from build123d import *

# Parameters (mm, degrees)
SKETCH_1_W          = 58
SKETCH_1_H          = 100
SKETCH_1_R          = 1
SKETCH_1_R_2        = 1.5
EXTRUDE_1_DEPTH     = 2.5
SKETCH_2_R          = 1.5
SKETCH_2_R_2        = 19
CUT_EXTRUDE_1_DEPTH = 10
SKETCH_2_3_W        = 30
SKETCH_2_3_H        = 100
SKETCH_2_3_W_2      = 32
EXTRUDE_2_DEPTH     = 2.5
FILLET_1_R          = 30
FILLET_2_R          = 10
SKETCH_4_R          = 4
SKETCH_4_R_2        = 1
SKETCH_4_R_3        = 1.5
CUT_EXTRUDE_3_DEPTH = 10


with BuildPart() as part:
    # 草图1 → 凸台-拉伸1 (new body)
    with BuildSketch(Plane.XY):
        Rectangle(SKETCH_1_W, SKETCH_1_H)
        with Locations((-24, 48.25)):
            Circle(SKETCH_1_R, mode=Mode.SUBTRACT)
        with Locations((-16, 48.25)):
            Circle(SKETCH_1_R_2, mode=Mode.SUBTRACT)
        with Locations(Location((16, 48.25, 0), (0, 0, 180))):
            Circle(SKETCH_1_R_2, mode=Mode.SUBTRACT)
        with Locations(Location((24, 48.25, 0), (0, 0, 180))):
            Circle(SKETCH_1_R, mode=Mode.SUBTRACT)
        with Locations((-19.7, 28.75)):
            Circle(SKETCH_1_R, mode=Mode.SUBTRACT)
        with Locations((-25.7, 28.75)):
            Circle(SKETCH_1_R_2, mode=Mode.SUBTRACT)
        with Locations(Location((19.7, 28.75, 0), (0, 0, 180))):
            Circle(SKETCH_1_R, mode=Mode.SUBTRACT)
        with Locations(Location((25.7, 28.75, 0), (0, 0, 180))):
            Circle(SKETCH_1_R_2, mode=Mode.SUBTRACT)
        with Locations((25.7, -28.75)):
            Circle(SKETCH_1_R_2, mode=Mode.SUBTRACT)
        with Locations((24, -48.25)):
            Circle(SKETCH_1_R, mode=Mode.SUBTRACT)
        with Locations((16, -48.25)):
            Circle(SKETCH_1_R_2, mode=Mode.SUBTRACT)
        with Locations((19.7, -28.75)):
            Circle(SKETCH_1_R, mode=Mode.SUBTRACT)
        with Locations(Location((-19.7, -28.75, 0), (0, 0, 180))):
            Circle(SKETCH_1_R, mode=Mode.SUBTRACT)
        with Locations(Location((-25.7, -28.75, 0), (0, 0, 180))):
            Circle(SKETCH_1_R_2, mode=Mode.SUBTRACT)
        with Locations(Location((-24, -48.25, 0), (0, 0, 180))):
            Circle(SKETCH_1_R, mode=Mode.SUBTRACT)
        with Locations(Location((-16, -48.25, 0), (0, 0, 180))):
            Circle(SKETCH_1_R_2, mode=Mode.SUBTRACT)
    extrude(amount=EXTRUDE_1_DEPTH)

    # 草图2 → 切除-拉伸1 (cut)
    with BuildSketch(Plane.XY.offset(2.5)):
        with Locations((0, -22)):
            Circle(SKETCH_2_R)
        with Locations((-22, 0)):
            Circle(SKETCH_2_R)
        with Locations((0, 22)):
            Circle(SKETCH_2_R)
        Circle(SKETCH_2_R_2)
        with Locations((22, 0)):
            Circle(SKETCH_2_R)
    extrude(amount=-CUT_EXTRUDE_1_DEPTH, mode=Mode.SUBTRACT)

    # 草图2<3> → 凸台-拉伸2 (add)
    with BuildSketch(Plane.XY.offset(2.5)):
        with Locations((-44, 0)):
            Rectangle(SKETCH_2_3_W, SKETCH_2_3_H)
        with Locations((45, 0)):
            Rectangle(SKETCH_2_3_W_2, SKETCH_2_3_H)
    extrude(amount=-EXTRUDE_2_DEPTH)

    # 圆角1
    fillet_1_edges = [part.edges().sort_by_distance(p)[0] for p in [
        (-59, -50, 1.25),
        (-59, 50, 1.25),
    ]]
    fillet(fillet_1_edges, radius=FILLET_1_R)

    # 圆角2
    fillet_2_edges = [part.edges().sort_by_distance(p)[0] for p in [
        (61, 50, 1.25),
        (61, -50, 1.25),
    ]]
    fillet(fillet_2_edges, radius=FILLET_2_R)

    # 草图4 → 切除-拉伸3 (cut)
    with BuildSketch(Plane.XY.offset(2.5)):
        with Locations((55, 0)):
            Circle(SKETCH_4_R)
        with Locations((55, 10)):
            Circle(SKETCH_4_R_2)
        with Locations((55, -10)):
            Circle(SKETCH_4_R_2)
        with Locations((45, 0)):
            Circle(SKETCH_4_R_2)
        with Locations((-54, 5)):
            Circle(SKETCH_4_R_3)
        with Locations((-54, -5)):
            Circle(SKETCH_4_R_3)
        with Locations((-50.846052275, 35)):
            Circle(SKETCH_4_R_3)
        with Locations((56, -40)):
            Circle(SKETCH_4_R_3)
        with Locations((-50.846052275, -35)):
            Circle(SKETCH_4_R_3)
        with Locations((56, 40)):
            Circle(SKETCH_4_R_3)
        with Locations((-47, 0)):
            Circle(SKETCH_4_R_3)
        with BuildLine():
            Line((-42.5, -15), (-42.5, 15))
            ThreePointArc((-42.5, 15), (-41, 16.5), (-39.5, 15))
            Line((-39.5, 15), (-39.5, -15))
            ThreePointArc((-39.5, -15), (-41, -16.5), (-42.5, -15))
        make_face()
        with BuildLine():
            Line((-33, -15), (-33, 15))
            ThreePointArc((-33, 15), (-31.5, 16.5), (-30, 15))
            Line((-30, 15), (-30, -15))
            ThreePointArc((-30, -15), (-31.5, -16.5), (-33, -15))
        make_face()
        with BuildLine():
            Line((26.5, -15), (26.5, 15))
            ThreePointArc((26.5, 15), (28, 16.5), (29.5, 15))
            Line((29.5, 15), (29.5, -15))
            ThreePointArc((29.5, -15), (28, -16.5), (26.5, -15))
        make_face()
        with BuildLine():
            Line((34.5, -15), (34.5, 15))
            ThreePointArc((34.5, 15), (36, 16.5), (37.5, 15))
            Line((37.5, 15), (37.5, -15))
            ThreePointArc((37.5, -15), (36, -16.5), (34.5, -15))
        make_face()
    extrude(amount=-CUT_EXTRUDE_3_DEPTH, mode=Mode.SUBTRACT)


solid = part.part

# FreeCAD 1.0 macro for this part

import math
import FreeCAD as App
import Part
import Sketcher

V = App.Vector
Q = App.Units.Quantity


def edges_at(feature, points):
    """Names of the edges that pass closest to the given points."""
    edges = feature.Shape.Edges
    near = lambda p: min(range(len(edges)), key=lambda i: edges[i].distToShape(Part.Vertex(*p))[0])
    return sorted({f"Edge{near(p) + 1}" for p in points})

doc = App.newDocument("Part")
body = doc.addObject("PartDesign::Body", "Body")

sketch1 = doc.addObject("Sketcher::SketchObject", "Sketch")
body.addObject(sketch1)
sketch1.AttachmentSupport = (doc.XY_Plane, [""])
sketch1.MapMode = "FlatFace"
sketch1.addGeometry([
    Part.LineSegment(V(-29, 50, 0), V(-29, -50, 0)),
    Part.LineSegment(V(-29, -50, 0), V(29, -50, 0)),
    Part.LineSegment(V(29, -50, 0), V(29, 50, 0)),
    Part.LineSegment(V(29, 50, 0), V(-29, 50, 0)),
    Part.Circle(V(-24, -48.2, 0), V(0, 0, 1), 1),
    Part.Circle(V(-16, -48.2, 0), V(0, 0, 1), 1.5),
    Part.Circle(V(-25.7, -28.8, 0), V(0, 0, 1), 1.5),
    Part.Circle(V(-19.7, -28.8, 0), V(0, 0, 1), 1),
    Part.Circle(V(16, -48.2, 0), V(0, 0, 1), 1.5),
    Part.Circle(V(24, -48.2, 0), V(0, 0, 1), 1),
    Part.Circle(V(19.7, -28.8, 0), V(0, 0, 1), 1),
    Part.Circle(V(25.7, -28.8, 0), V(0, 0, 1), 1.5),
    Part.Circle(V(-25.7, 28.8, 0), V(0, 0, 1), 1.5),
    Part.Circle(V(-19.7, 28.8, 0), V(0, 0, 1), 1),
    Part.Circle(V(-24, 48.2, 0), V(0, 0, 1), 1),
    Part.Circle(V(-16, 48.2, 0), V(0, 0, 1), 1.5),
    Part.Circle(V(19.7, 28.8, 0), V(0, 0, 1), 1),
    Part.Circle(V(25.7, 28.8, 0), V(0, 0, 1), 1.5),
    Part.Circle(V(16, 48.2, 0), V(0, 0, 1), 1.5),
    Part.Circle(V(24, 48.2, 0), V(0, 0, 1), 1),
], False)
sketch1.addConstraint([
    Sketcher.Constraint("Coincident", 0, 2, 1, 1),
    Sketcher.Constraint("Coincident", 1, 2, 2, 1),
    Sketcher.Constraint("Coincident", 2, 2, 3, 1),
    Sketcher.Constraint("Coincident", 3, 2, 0, 1),
    Sketcher.Constraint("Vertical", 0),
    Sketcher.Constraint("Horizontal", 1),
    Sketcher.Constraint("Vertical", 2),
    Sketcher.Constraint("Horizontal", 3),
    Sketcher.Constraint("Equal", 5, 6),
    Sketcher.Constraint("Equal", 4, 7),
    Sketcher.Constraint("Equal", 6, 8),
    Sketcher.Constraint("Equal", 7, 9),
    Sketcher.Constraint("Equal", 9, 10),
    Sketcher.Constraint("Equal", 8, 11),
    Sketcher.Constraint("Equal", 11, 12),
    Sketcher.Constraint("Equal", 10, 13),
    Sketcher.Constraint("Equal", 13, 14),
    Sketcher.Constraint("Equal", 12, 15),
    Sketcher.Constraint("Equal", 14, 16),
    Sketcher.Constraint("Equal", 15, 17),
    Sketcher.Constraint("Equal", 17, 18),
    Sketcher.Constraint("Equal", 16, 19),
    Sketcher.Constraint("Symmetric", 11, 3, 12, 3, -1, 1),
    Sketcher.Constraint("Symmetric", 10, 3, 13, 3, -1, 1),
    Sketcher.Constraint("Symmetric", 9, 3, 14, 3, -1, 1),
    Sketcher.Constraint("Symmetric", 8, 3, 15, 3, -1, 1),
    Sketcher.Constraint("Symmetric", 7, 3, 16, 3, -1, 1),
    Sketcher.Constraint("Symmetric", 6, 3, 17, 3, -1, 1),
    Sketcher.Constraint("Symmetric", 5, 3, 18, 3, -1, 1),
    Sketcher.Constraint("Symmetric", 4, 3, 19, 3, -1, 1),
    Sketcher.Constraint("Symmetric", 0, 2, 2, 2, -1, 1),
    Sketcher.Constraint("Symmetric", 5, 3, 8, 3, -2),
    Sketcher.Constraint("Symmetric", 4, 3, 9, 3, -2),
    Sketcher.Constraint("Symmetric", 7, 3, 10, 3, -2),
    Sketcher.Constraint("Symmetric", 6, 3, 11, 3, -2),
    Sketcher.Constraint("Horizontal", 4, 3, 5, 3),
    Sketcher.Constraint("Horizontal", 6, 3, 7, 3),
    Sketcher.Constraint("Diameter", 4, Q("2 mm")),
    Sketcher.Constraint("Diameter", 5, Q("3 mm")),
    Sketcher.Constraint("DistanceX", 1, 1, 1, 2, Q("58 mm")),
    Sketcher.Constraint("DistanceY", 0, 2, 0, 1, Q("100 mm")),
    Sketcher.Constraint("DistanceX", 4, 3, -1, 1, Q("24 mm")),
    Sketcher.Constraint("DistanceX", 5, 3, -1, 1, Q("16 mm")),
    Sketcher.Constraint("DistanceX", 6, 3, 7, 3, Q("6 mm")),
    Sketcher.Constraint("DistanceY", 4, 3, 12, 3, Q("77 mm")),
    Sketcher.Constraint("DistanceX", 6, 3, -1, 1, Q("25.7 mm")),
    Sketcher.Constraint("DistanceY", 4, 3, 6, 3, Q("19.5 mm")),
])
pad1 = doc.addObject("PartDesign::Pad", "Pad")
body.addObject(pad1)
pad1.Profile = sketch1
pad1.Length = 2.5

sketch2 = doc.addObject("Sketcher::SketchObject", "Sketch001")
body.addObject(sketch2)
sketch2.AttachmentSupport = (doc.XY_Plane, [""])
sketch2.MapMode = "FlatFace"
sketch2.AttachmentOffset = App.Placement(V(0, 0, 2.5), App.Rotation())
sketch2.addGeometry([
    Part.Circle(V(0, -22, 0), V(0, 0, 1), 1.5),
    Part.Circle(V(-22, 0, 0), V(0, 0, 1), 1.5),
    Part.Circle(V(0, 22, 0), V(0, 0, 1), 1.5),
    Part.Circle(V(0, 0, 0), V(0, 0, 1), 19),
    Part.Circle(V(22, 0, 0), V(0, 0, 1), 1.5),
], False)
sketch2.addConstraint([
    Sketcher.Constraint("Coincident", 3, 3, -1, 1),
    Sketcher.Constraint("Equal", 0, 1),
    Sketcher.Constraint("Equal", 1, 2),
    Sketcher.Constraint("Equal", 2, 4),
    Sketcher.Constraint("Symmetric", 0, 3, 2, 3, -1, 1),
    Sketcher.Constraint("Symmetric", 1, 3, 4, 3, -1, 1),
    Sketcher.Constraint("PointOnObject", 0, 3, -2),
    Sketcher.Constraint("PointOnObject", 1, 3, -1),
    Sketcher.Constraint("Diameter", 0, Q("3 mm")),
    Sketcher.Constraint("Diameter", 3, Q("38 mm")),
    Sketcher.Constraint("DistanceY", 0, 3, -1, 1, Q("22 mm")),
    Sketcher.Constraint("DistanceX", 1, 3, -1, 1, Q("22 mm")),
])
pocket1 = doc.addObject("PartDesign::Pocket", "Pocket")
body.addObject(pocket1)
pocket1.Profile = sketch2
pocket1.Length = 10

sketch3 = doc.addObject("Sketcher::SketchObject", "Sketch002")
body.addObject(sketch3)
sketch3.AttachmentSupport = (doc.XY_Plane, [""])
sketch3.MapMode = "FlatFace"
sketch3.AttachmentOffset = App.Placement(V(0, 0, 2.5), App.Rotation())
sketch3.addGeometry([
    Part.LineSegment(V(-59, 50, 0), V(-59, -50, 0)),
    Part.LineSegment(V(-59, -50, 0), V(-29, -50, 0)),
    Part.LineSegment(V(-29, -50, 0), V(-29, 50, 0)),
    Part.LineSegment(V(-29, 50, 0), V(-59, 50, 0)),
    Part.LineSegment(V(29, 50, 0), V(29, -50, 0)),
    Part.LineSegment(V(29, -50, 0), V(61, -50, 0)),
    Part.LineSegment(V(61, -50, 0), V(61, 50, 0)),
    Part.LineSegment(V(61, 50, 0), V(29, 50, 0)),
], False)
sketch3.addConstraint([
    Sketcher.Constraint("Coincident", 0, 2, 1, 1),
    Sketcher.Constraint("Coincident", 1, 2, 2, 1),
    Sketcher.Constraint("Coincident", 2, 2, 3, 1),
    Sketcher.Constraint("Coincident", 3, 2, 0, 1),
    Sketcher.Constraint("Coincident", 4, 2, 5, 1),
    Sketcher.Constraint("Coincident", 5, 2, 6, 1),
    Sketcher.Constraint("Coincident", 6, 2, 7, 1),
    Sketcher.Constraint("Coincident", 7, 2, 4, 1),
    Sketcher.Constraint("Vertical", 0),
    Sketcher.Constraint("Horizontal", 1),
    Sketcher.Constraint("Vertical", 2),
    Sketcher.Constraint("Horizontal", 3),
    Sketcher.Constraint("Vertical", 4),
    Sketcher.Constraint("Horizontal", 5),
    Sketcher.Constraint("Vertical", 6),
    Sketcher.Constraint("Horizontal", 7),
    Sketcher.Constraint("Symmetric", 2, 2, 4, 2, -1, 1),
    Sketcher.Constraint("Horizontal", 1, 2, 4, 2),
    Sketcher.Constraint("Horizontal", 3, 2, 6, 2),
    Sketcher.Constraint("DistanceX", 1, 1, 1, 2, Q("30 mm")),
    Sketcher.Constraint("DistanceX", 5, 1, 5, 2, Q("32 mm")),
    Sketcher.Constraint("DistanceY", 0, 2, 0, 1, Q("100 mm")),
    Sketcher.Constraint("DistanceX", 0, 2, -1, 1, Q("59 mm")),
])
pad2 = doc.addObject("PartDesign::Pad", "Pad001")
body.addObject(pad2)
pad2.Profile = sketch3
pad2.Length = 2.5
pad2.Reversed = True
doc.recompute()

fillet = doc.addObject("PartDesign::Fillet", "Fillet")
body.addObject(fillet)
fillet.Base = (pad2, edges_at(pad2, [(-59, -50, 1.25), (-59, 50, 1.25)]))
fillet.Radius = 30
doc.recompute()

fillet2 = doc.addObject("PartDesign::Fillet", "Fillet001")
body.addObject(fillet2)
fillet2.Base = (fillet, edges_at(fillet, [(61, 50, 1.25), (61, -50, 1.25)]))
fillet2.Radius = 10

sketch4 = doc.addObject("Sketcher::SketchObject", "Sketch003")
body.addObject(sketch4)
sketch4.AttachmentSupport = (doc.XY_Plane, [""])
sketch4.MapMode = "FlatFace"
sketch4.AttachmentOffset = App.Placement(V(0, 0, 2.5), App.Rotation())
sketch4.addGeometry([
    Part.Circle(V(55, 0, 0), V(0, 0, 1), 4),
    Part.Circle(V(55, 10, 0), V(0, 0, 1), 1),
    Part.Circle(V(55, -10, 0), V(0, 0, 1), 1),
    Part.Circle(V(45, 0, 0), V(0, 0, 1), 1),
    Part.Circle(V(-54, 5, 0), V(0, 0, 1), 1.5),
    Part.Circle(V(-54, -5, 0), V(0, 0, 1), 1.5),
    Part.Circle(V(-50.8, 35, 0), V(0, 0, 1), 1.5),
    Part.Circle(V(56, -40, 0), V(0, 0, 1), 1.5),
    Part.Circle(V(-50.8, -35, 0), V(0, 0, 1), 1.5),
    Part.Circle(V(56, 40, 0), V(0, 0, 1), 1.5),
    Part.Circle(V(-47, 0, 0), V(0, 0, 1), 1.5),
    Part.LineSegment(V(-42.5, 15, 0), V(-42.5, -15, 0)),
    Part.ArcOfCircle(Part.Circle(V(-41, -15, 0), V(0, 0, 1), 1.5), math.radians(180), math.radians(360)),
    Part.LineSegment(V(-39.5, -15, 0), V(-39.5, 15, 0)),
    Part.ArcOfCircle(Part.Circle(V(-41, 15, 0), V(0, 0, 1), 1.5), math.radians(0), math.radians(180)),
    Part.LineSegment(V(-33, 15, 0), V(-33, -15, 0)),
    Part.ArcOfCircle(Part.Circle(V(-31.5, -15, 0), V(0, 0, 1), 1.5), math.radians(180), math.radians(360)),
    Part.LineSegment(V(-30, -15, 0), V(-30, 15, 0)),
    Part.ArcOfCircle(Part.Circle(V(-31.5, 15, 0), V(0, 0, 1), 1.5), math.radians(0), math.radians(180)),
    Part.LineSegment(V(26.5, 15, 0), V(26.5, -15, 0)),
    Part.ArcOfCircle(Part.Circle(V(28, -15, 0), V(0, 0, 1), 1.5), math.radians(180), math.radians(360)),
    Part.LineSegment(V(29.5, -15, 0), V(29.5, 15, 0)),
    Part.ArcOfCircle(Part.Circle(V(28, 15, 0), V(0, 0, 1), 1.5), math.radians(0), math.radians(180)),
    Part.LineSegment(V(34.5, 15, 0), V(34.5, -15, 0)),
    Part.ArcOfCircle(Part.Circle(V(36, -15, 0), V(0, 0, 1), 1.5), math.radians(180), math.radians(360)),
    Part.LineSegment(V(37.5, -15, 0), V(37.5, 15, 0)),
    Part.ArcOfCircle(Part.Circle(V(36, 15, 0), V(0, 0, 1), 1.5), math.radians(0), math.radians(180)),
], False)
sketch4.addConstraint([
    Sketcher.Constraint("Tangent", 11, 2, 12, 1),
    Sketcher.Constraint("Tangent", 12, 2, 13, 1),
    Sketcher.Constraint("Tangent", 13, 2, 14, 1),
    Sketcher.Constraint("Tangent", 14, 2, 11, 1),
    Sketcher.Constraint("Tangent", 15, 2, 16, 1),
    Sketcher.Constraint("Tangent", 16, 2, 17, 1),
    Sketcher.Constraint("Tangent", 17, 2, 18, 1),
    Sketcher.Constraint("Tangent", 18, 2, 15, 1),
    Sketcher.Constraint("Tangent", 19, 2, 20, 1),
    Sketcher.Constraint("Tangent", 20, 2, 21, 1),
    Sketcher.Constraint("Tangent", 21, 2, 22, 1),
    Sketcher.Constraint("Tangent", 22, 2, 19, 1),
    Sketcher.Constraint("Tangent", 23, 2, 24, 1),
    Sketcher.Constraint("Tangent", 24, 2, 25, 1),
    Sketcher.Constraint("Tangent", 25, 2, 26, 1),
    Sketcher.Constraint("Tangent", 26, 2, 23, 1),
    Sketcher.Constraint("Vertical", 11),
    Sketcher.Constraint("Vertical", 13),
    Sketcher.Constraint("Vertical", 15),
    Sketcher.Constraint("Vertical", 17),
    Sketcher.Constraint("Vertical", 19),
    Sketcher.Constraint("Vertical", 21),
    Sketcher.Constraint("Vertical", 23),
    Sketcher.Constraint("Vertical", 25),
    Sketcher.Constraint("Equal", 1, 2),
    Sketcher.Constraint("Equal", 2, 3),
    Sketcher.Constraint("Equal", 4, 5),
    Sketcher.Constraint("Equal", 5, 6),
    Sketcher.Constraint("Equal", 6, 7),
    Sketcher.Constraint("Equal", 7, 8),
    Sketcher.Constraint("Equal", 8, 9),
    Sketcher.Constraint("Equal", 9, 10),
    Sketcher.Constraint("Equal", 10, 12),
    Sketcher.Constraint("Equal", 14, 16),
    Sketcher.Constraint("Equal", 18, 20),
    Sketcher.Constraint("Equal", 22, 24),
    Sketcher.Constraint("Symmetric", 1, 3, 2, 3, -1),
    Sketcher.Constraint("Symmetric", 4, 3, 5, 3, -1),
    Sketcher.Constraint("Symmetric", 6, 3, 8, 3, -1),
    Sketcher.Constraint("Symmetric", 7, 3, 9, 3, -1),
    Sketcher.Constraint("PointOnObject", 0, 3, -1),
    Sketcher.Constraint("PointOnObject", 3, 3, -1),
    Sketcher.Constraint("PointOnObject", 10, 3, -1),
    Sketcher.Constraint("Horizontal", 12, 3, 16, 3),
    Sketcher.Constraint("Horizontal", 14, 3, 18, 3),
    Sketcher.Constraint("Horizontal", 16, 3, 20, 3),
    Sketcher.Constraint("Horizontal", 18, 3, 22, 3),
    Sketcher.Constraint("Horizontal", 20, 3, 24, 3),
    Sketcher.Constraint("Horizontal", 22, 3, 26, 3),
    Sketcher.Constraint("Vertical", 0, 3, 1, 3),
    Sketcher.Constraint("Diameter", 0, Q("8 mm")),
    Sketcher.Constraint("Diameter", 1, Q("2 mm")),
    Sketcher.Constraint("Diameter", 4, Q("3 mm")),
    Sketcher.Constraint("DistanceY", 11, 2, 11, 1, Q("30 mm")),
    Sketcher.Constraint("DistanceX", -1, 1, 0, 3, Q("55 mm")),
    Sketcher.Constraint("DistanceY", -1, 1, 1, 3, Q("10 mm")),
    Sketcher.Constraint("DistanceX", -1, 1, 3, 3, Q("45 mm")),
    Sketcher.Constraint("DistanceX", 4, 3, -1, 1, Q("54 mm")),
    Sketcher.Constraint("DistanceY", -1, 1, 4, 3, Q("5 mm")),
    Sketcher.Constraint("DistanceY", -1, 1, 6, 3, Q("35 mm")),
    Sketcher.Constraint("DistanceX", -1, 1, 7, 3, Q("56 mm")),
    Sketcher.Constraint("DistanceY", 7, 3, -1, 1, Q("40 mm")),
    Sketcher.Constraint("DistanceX", 10, 3, -1, 1, Q("47 mm")),
    Sketcher.Constraint("DistanceX", 12, 3, -1, 1, Q("41 mm")),
    Sketcher.Constraint("DistanceY", 12, 3, -1, 1, Q("15 mm")),
    Sketcher.Constraint("DistanceX", -1, 1, 20, 3, Q("28 mm")),
    Sketcher.Constraint("DistanceX", -1, 1, 24, 3, Q("36 mm")),
    Sketcher.Constraint("DistanceX", 15, 2, -1, 1, Q("33 mm")),
    Sketcher.Constraint("DistanceX", 6, 3, -1, 1, Q("50.846052 mm")),
])
pocket2 = doc.addObject("PartDesign::Pocket", "Pocket001")
body.addObject(pocket2)
pocket2.Profile = sketch4
pocket2.Length = 10

doc.recompute()
